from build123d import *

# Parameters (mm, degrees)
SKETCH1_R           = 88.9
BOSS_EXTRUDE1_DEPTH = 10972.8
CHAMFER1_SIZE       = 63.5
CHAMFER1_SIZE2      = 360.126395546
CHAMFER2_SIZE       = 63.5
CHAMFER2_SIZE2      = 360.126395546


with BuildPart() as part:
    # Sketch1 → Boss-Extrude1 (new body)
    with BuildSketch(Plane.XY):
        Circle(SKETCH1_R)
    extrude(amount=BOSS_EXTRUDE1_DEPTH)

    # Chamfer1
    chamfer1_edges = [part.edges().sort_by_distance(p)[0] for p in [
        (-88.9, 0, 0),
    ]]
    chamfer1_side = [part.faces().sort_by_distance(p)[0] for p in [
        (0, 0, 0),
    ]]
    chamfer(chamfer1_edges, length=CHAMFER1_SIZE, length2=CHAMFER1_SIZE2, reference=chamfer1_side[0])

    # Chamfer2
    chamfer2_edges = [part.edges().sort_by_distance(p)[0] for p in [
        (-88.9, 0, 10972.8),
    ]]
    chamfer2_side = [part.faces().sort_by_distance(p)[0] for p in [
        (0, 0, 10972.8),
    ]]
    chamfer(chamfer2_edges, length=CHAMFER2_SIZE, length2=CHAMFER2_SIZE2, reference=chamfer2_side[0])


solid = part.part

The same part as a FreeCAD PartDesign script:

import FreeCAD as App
import Part
import Sketcher
Q = App.Units.Quantity


def edges_at(feature, points):
    """Names of the edges that pass closest to the given points."""
    edges = feature.Shape.Edges
    near = lambda p: min(range(len(edges)), key=lambda i: edges[i].distToShape(Part.Vertex(*p))[0])
    return sorted({f"Edge{near(p) + 1}" for p in points})

doc = App.newDocument("Part")
body = doc.addObject("PartDesign::Body", "Body")

# Sketch on XY plane
sketch1 = body.newObject("Sketcher::SketchObject", "Sketch")
sketch1.AttachmentSupport = (doc.getObject("XY_Plane"), [""])
sketch1.MapMode = "FlatFace"
sketch1.addGeometry(Part.Circle(App.Vector(0, 0, 0), App.Vector(0, 0, 1), 89), False)
sketch1.addConstraint([
    Sketcher.Constraint("Coincident", 0, 3, -1, 1),
    Sketcher.Constraint("Diameter", 0, Q("7 in")),
])
pad1 = body.newObject("PartDesign::Pad", "Pad")
pad1.Profile = sketch1
pad1.Length = Q("432 in")
doc.recompute()

chamfer = body.newObject("PartDesign::Chamfer", "Chamfer")
chamfer.Base = (pad1, edges_at(pad1, [(-88.9, 0, 0)]))
chamfer.ChamferType = "Two distances"
chamfer.Size = Q("2.5 in")
chamfer.Size2 = 360.126396
chamfer.FlipDirection = True
doc.recompute()

chamfer2 = body.newObject("PartDesign::Chamfer", "Chamfer001")
chamfer2.Base = (chamfer, edges_at(chamfer, [(-88.9, 0, 10972.8)]))
chamfer2.ChamferType = "Two distances"
chamfer2.Size = Q("2.5 in")
chamfer2.Size2 = 360.126396
chamfer2.FlipDirection = True

doc.recompute()
